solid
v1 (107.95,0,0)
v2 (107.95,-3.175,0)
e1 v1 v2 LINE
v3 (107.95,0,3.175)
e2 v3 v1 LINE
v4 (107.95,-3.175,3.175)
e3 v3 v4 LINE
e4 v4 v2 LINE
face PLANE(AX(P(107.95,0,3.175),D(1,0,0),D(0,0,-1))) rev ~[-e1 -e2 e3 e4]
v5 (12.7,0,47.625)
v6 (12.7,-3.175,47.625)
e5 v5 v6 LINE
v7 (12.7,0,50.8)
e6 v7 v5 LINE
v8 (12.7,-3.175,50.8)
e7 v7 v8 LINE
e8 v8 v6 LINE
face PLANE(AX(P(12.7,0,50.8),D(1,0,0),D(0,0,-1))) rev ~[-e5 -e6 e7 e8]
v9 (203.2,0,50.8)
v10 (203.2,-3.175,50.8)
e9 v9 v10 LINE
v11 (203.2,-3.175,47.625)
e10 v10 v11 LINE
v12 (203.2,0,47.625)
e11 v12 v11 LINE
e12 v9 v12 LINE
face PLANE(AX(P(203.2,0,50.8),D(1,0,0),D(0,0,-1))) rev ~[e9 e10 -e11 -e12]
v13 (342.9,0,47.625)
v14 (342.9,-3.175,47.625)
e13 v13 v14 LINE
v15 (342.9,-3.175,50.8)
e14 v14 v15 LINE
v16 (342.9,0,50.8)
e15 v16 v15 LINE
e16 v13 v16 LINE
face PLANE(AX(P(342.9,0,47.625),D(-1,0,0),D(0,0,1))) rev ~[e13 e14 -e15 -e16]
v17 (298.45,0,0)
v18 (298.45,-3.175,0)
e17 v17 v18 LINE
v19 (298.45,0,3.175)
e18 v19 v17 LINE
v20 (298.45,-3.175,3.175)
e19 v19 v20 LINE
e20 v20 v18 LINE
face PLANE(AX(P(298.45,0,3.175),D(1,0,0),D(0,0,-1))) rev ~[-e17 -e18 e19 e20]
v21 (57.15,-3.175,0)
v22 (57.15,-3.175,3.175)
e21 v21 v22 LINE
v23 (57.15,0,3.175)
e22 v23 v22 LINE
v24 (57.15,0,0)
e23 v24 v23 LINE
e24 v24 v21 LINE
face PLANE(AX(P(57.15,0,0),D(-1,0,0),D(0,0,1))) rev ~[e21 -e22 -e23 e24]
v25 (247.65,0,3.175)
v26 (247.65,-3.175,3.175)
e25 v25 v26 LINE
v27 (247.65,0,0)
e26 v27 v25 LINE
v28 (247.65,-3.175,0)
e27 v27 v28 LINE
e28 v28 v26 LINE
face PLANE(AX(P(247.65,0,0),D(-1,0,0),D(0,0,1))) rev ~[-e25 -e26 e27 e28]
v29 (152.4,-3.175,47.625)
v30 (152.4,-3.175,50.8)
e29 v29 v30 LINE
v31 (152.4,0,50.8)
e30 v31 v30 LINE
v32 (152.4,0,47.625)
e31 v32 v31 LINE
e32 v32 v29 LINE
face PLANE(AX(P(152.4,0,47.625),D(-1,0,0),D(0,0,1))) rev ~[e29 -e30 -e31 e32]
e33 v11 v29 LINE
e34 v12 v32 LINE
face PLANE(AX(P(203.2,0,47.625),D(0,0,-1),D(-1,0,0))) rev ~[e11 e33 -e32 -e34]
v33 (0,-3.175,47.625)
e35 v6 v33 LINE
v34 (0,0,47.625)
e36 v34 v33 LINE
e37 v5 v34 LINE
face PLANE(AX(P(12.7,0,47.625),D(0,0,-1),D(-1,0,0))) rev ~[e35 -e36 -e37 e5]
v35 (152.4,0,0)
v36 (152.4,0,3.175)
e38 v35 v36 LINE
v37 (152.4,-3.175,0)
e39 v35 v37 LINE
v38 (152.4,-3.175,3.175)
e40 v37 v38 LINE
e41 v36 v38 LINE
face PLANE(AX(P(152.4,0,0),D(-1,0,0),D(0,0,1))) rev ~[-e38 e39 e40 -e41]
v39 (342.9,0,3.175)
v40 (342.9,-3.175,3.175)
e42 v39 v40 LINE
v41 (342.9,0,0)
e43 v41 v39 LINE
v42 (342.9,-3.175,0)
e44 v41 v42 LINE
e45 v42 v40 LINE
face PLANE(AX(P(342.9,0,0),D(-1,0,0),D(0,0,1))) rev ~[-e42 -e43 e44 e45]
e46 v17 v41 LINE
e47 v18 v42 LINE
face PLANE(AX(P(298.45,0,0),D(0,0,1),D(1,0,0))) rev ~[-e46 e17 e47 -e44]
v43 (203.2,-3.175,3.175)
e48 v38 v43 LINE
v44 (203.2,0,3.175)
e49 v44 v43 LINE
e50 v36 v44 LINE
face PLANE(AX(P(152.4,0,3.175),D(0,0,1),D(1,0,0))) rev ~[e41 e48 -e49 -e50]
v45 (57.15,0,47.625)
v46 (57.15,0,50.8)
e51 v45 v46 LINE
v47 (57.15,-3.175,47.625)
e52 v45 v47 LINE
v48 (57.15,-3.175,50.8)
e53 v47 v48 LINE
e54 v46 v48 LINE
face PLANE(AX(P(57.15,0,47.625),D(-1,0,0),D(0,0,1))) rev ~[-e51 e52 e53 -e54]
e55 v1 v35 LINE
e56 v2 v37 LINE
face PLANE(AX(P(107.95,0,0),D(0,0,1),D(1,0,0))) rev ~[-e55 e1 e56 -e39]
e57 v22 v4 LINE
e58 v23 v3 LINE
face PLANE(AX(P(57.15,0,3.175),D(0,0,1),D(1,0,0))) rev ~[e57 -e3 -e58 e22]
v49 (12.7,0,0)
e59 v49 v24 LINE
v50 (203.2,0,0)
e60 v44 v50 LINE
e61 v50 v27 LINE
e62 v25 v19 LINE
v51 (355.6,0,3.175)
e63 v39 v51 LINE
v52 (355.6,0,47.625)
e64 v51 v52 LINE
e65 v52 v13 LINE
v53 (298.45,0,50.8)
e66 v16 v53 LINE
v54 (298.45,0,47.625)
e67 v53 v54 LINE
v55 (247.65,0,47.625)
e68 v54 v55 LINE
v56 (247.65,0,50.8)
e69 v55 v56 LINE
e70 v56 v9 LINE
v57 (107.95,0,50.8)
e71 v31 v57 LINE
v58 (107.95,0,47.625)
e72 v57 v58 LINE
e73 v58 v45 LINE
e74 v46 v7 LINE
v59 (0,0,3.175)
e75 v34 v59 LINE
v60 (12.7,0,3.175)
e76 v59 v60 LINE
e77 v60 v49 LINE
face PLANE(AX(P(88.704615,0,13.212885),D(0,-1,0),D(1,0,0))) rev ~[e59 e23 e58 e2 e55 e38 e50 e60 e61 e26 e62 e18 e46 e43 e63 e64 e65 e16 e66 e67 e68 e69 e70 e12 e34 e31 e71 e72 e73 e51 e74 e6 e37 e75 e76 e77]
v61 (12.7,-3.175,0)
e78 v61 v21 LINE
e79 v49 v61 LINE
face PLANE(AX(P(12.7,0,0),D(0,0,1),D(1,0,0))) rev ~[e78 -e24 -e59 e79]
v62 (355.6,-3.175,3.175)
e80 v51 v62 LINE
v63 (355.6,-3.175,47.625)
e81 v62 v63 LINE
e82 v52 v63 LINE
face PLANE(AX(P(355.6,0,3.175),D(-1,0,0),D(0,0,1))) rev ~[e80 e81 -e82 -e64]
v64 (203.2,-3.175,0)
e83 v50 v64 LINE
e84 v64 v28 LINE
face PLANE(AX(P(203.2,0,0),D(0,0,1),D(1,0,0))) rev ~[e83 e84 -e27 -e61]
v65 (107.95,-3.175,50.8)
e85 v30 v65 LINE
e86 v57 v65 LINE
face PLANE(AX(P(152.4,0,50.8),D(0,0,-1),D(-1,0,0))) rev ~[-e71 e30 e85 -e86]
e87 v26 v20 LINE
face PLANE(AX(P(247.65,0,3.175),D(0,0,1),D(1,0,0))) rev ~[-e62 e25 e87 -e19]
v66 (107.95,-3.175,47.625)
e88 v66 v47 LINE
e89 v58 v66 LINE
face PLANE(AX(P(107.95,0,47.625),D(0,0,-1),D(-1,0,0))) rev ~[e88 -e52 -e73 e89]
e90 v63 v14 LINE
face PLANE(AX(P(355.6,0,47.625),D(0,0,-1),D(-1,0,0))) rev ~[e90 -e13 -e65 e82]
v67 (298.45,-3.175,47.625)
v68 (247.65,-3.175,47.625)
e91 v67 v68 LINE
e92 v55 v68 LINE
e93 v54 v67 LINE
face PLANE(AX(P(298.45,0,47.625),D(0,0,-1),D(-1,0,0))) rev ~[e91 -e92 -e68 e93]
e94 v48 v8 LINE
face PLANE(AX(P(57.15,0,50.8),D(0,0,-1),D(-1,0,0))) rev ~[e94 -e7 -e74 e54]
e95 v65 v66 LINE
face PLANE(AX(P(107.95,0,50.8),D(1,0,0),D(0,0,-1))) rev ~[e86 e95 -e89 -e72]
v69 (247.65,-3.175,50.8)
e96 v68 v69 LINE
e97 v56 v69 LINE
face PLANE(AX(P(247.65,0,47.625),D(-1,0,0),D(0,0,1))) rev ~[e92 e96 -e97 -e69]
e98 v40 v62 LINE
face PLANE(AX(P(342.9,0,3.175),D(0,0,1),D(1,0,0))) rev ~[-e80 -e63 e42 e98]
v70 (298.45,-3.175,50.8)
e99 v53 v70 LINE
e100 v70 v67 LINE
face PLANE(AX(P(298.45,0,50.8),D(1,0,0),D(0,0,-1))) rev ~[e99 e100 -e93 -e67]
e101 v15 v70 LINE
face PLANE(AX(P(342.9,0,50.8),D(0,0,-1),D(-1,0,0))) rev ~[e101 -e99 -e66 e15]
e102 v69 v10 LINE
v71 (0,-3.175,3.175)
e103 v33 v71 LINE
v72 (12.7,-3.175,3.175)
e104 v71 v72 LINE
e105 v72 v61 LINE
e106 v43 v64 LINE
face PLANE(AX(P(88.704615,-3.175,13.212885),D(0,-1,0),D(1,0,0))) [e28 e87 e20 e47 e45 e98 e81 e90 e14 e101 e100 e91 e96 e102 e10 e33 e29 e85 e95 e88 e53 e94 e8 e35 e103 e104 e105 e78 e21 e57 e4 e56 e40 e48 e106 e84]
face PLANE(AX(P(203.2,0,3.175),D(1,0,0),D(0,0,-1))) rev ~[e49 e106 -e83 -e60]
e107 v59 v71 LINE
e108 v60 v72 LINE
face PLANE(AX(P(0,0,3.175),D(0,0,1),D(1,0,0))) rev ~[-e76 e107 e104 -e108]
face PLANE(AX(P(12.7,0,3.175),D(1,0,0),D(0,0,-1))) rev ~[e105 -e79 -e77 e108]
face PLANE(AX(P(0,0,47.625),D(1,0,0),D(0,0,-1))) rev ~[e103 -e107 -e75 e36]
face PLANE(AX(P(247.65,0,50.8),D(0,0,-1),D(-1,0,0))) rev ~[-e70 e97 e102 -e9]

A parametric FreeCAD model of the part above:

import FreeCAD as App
import Part
import Sketcher
from FreeCAD import Vector
Q = App.Units.Quantity

doc = App.newDocument("Part")
body = doc.addObject("PartDesign::Body", "Body")

# Sketch on XZ plane
sketch1 = doc.addObject("Sketcher::SketchObject", "Sketch")
body.addObject(sketch1)
sketch1.AttachmentSupport = (doc.XZ_Plane, [""])
sketch1.MapMode = "FlatFace"
sketch1.addGeometry([
    Part.LineSegment(Vector(12.7, 3.2, 0), Vector(12.7, 0, 0)),  # 0
    Part.LineSegment(Vector(12.7, 0, 0), Vector(57.1, 0, 0)),  # 1
    Part.LineSegment(Vector(57.1, 0, 0), Vector(57.1, 3.2, 0)),  # 2
    Part.LineSegment(Vector(57.1, 3.2, 0), Vector(108, 3.2, 0)),  # 3
    Part.LineSegment(Vector(108, 3.2, 0), Vector(108, 0, 0)),  # 4
    Part.LineSegment(Vector(108, 0, 0), Vector(152.4, 0, 0)),  # 5
    Part.LineSegment(Vector(152.4, 0, 0), Vector(152.4, 3.2, 0)),  # 6
    Part.LineSegment(Vector(152.4, 3.2, 0), Vector(203.2, 3.2, 0)),  # 7
    Part.LineSegment(Vector(203.2, 3.2, 0), Vector(203.2, 0, 0)),  # 8
    Part.LineSegment(Vector(203.2, 0, 0), Vector(247.7, 0, 0)),  # 9
    Part.LineSegment(Vector(247.7, 0, 0), Vector(247.7, 3.2, 0)),  # 10
    Part.LineSegment(Vector(247.7, 3.2, 0), Vector(298.4, 3.2, 0)),  # 11
    Part.LineSegment(Vector(298.4, 3.2, 0), Vector(298.4, 0, 0)),  # 12
    Part.LineSegment(Vector(298.4, 0, 0), Vector(342.9, 0, 0)),  # 13
    Part.LineSegment(Vector(342.9, 0, 0), Vector(342.9, 3.2, 0)),  # 14
    Part.LineSegment(Vector(342.9, 3.2, 0), Vector(355.6, 3.2, 0)),  # 15
    Part.LineSegment(Vector(355.6, 3.2, 0), Vector(355.6, 47.6, 0)),  # 16
    Part.LineSegment(Vector(355.6, 47.6, 0), Vector(342.9, 47.6, 0)),  # 17
    Part.LineSegment(Vector(342.9, 47.6, 0), Vector(342.9, 50.8, 0)),  # 18
    Part.LineSegment(Vector(342.9, 50.8, 0), Vector(298.4, 50.8, 0)),  # 19
    Part.LineSegment(Vector(298.4, 50.8, 0), Vector(298.4, 47.6, 0)),  # 20
    Part.LineSegment(Vector(298.4, 47.6, 0), Vector(247.7, 47.6, 0)),  # 21
    Part.LineSegment(Vector(247.7, 47.6, 0), Vector(247.7, 50.8, 0)),  # 22
    Part.LineSegment(Vector(247.7, 50.8, 0), Vector(203.2, 50.8, 0)),  # 23
    Part.LineSegment(Vector(203.2, 50.8, 0), Vector(203.2, 47.6, 0)),  # 24
    Part.LineSegment(Vector(203.2, 47.6, 0), Vector(152.4, 47.6, 0)),  # 25
    Part.LineSegment(Vector(152.4, 47.6, 0), Vector(152.4, 50.8, 0)),  # 26
    Part.LineSegment(Vector(152.4, 50.8, 0), Vector(108, 50.8, 0)),  # 27
    Part.LineSegment(Vector(108, 50.8, 0), Vector(108, 47.6, 0)),  # 28
    Part.LineSegment(Vector(108, 47.6, 0), Vector(57.1, 47.6, 0)),  # 29
    Part.LineSegment(Vector(57.1, 47.6, 0), Vector(57.1, 50.8, 0)),  # 30
    Part.LineSegment(Vector(57.1, 50.8, 0), Vector(12.7, 50.8, 0)),  # 31
    Part.LineSegment(Vector(12.7, 50.8, 0), Vector(12.7, 47.6, 0)),  # 32
    Part.LineSegment(Vector(12.7, 47.6, 0), Vector(0, 47.6, 0)),  # 33
    Part.LineSegment(Vector(0, 47.6, 0), Vector(0, 3.2, 0)),  # 34
    Part.LineSegment(Vector(0, 3.2, 0), Vector(12.7, 3.2, 0)),  # 35
], False)
sketch1.addConstraint([
    Sketcher.Constraint("Coincident", 0, 2, 1, 1),
    Sketcher.Constraint("Coincident", 1, 2, 2, 1),
    Sketcher.Constraint("Coincident", 2, 2, 3, 1),
    Sketcher.Constraint("Coincident", 3, 2, 4, 1),
    Sketcher.Constraint("Coincident", 4, 2, 5, 1),
    Sketcher.Constraint("Coincident", 5, 2, 6, 1),
    Sketcher.Constraint("Coincident", 6, 2, 7, 1),
    Sketcher.Constraint("Coincident", 7, 2, 8, 1),
    Sketcher.Constraint("Coincident", 8, 2, 9, 1),
    Sketcher.Constraint("Coincident", 9, 2, 10, 1),
    Sketcher.Constraint("Coincident", 10, 2, 11, 1),
    Sketcher.Constraint("Coincident", 11, 2, 12, 1),
    Sketcher.Constraint("Coincident", 12, 2, 13, 1),
    Sketcher.Constraint("Coincident", 13, 2, 14, 1),
    Sketcher.Constraint("Coincident", 14, 2, 15, 1),
    Sketcher.Constraint("Coincident", 15, 2, 16, 1),
    Sketcher.Constraint("Coincident", 16, 2, 17, 1),
    Sketcher.Constraint("Coincident", 17, 2, 18, 1),
    Sketcher.Constraint("Coincident", 18, 2, 19, 1),
    Sketcher.Constraint("Coincident", 19, 2, 20, 1),
    Sketcher.Constraint("Coincident", 20, 2, 21, 1),
    Sketcher.Constraint("Coincident", 21, 2, 22, 1),
    Sketcher.Constraint("Coincident", 22, 2, 23, 1),
    Sketcher.Constraint("Coincident", 23, 2, 24, 1),
    Sketcher.Constraint("Coincident", 24, 2, 25, 1),
    Sketcher.Constraint("Coincident", 25, 2, 26, 1),
    Sketcher.Constraint("Coincident", 26, 2, 27, 1),
    Sketcher.Constraint("Coincident", 27, 2, 28, 1),
    Sketcher.Constraint("Coincident", 28, 2, 29, 1),
    Sketcher.Constraint("Coincident", 29, 2, 30, 1),
    Sketcher.Constraint("Coincident", 30, 2, 31, 1),
    Sketcher.Constraint("Coincident", 31, 2, 32, 1),
    Sketcher.Constraint("Coincident", 32, 2, 33, 1),
    Sketcher.Constraint("Coincident", 33, 2, 34, 1),
    Sketcher.Constraint("Coincident", 34, 2, 35, 1),
    Sketcher.Constraint("Coincident", 35, 2, 0, 1),
    Sketcher.Constraint("Vertical", 0),
    Sketcher.Constraint("Horizontal", 1),
    Sketcher.Constraint("Vertical", 2),
    Sketcher.Constraint("Horizontal", 3),
    Sketcher.Constraint("Vertical", 4),
    Sketcher.Constraint("Horizontal", 5),
    Sketcher.Constraint("Vertical", 6),
    Sketcher.Constraint("Horizontal", 7),
    Sketcher.Constraint("Vertical", 8),
    Sketcher.Constraint("Horizontal", 9),
    Sketcher.Constraint("Vertical", 10),
    Sketcher.Constraint("Horizontal", 11),
    Sketcher.Constraint("Vertical", 12),
    Sketcher.Constraint("Horizontal", 13),
    Sketcher.Constraint("Vertical", 14),
    Sketcher.Constraint("Horizontal", 15),
    Sketcher.Constraint("Vertical", 16),
    Sketcher.Constraint("Horizontal", 17),
    Sketcher.Constraint("Vertical", 18),
    Sketcher.Constraint("Horizontal", 19),
    Sketcher.Constraint("Vertical", 20),
    Sketcher.Constraint("Horizontal", 21),
    Sketcher.Constraint("Vertical", 22),
    Sketcher.Constraint("Horizontal", 23),
    Sketcher.Constraint("Vertical", 24),
    Sketcher.Constraint("Horizontal", 25),
    Sketcher.Constraint("Vertical", 26),
    Sketcher.Constraint("Horizontal", 27),
    Sketcher.Constraint("Vertical", 28),
    Sketcher.Constraint("Horizontal", 29),
    Sketcher.Constraint("Vertical", 30),
    Sketcher.Constraint("Horizontal", 31),
    Sketcher.Constraint("Vertical", 32),
    Sketcher.Constraint("Horizontal", 33),
    Sketcher.Constraint("Vertical", 34),
    Sketcher.Constraint("Horizontal", 35),
    Sketcher.Constraint("PointOnObject", 0, 2, -1),
    Sketcher.Constraint("PointOnObject", 4, 2, -1),
    Sketcher.Constraint("PointOnObject", 8, 2, -1),
    Sketcher.Constraint("PointOnObject", 12, 2, -1),
    Sketcher.Constraint("PointOnObject", 33, 2, -2),
    Sketcher.Constraint("Horizontal", 3, 2, 6, 2),
    Sketcher.Constraint("Horizontal", 7, 2, 10, 2),
    Sketcher.Constraint("Horizontal", 11, 2, 14, 2),
    Sketcher.Constraint("Horizontal", 17, 2, 20, 2),
    Sketcher.Constraint("Horizontal", 19, 2, 22, 2),
    Sketcher.Constraint("Horizontal", 21, 2, 24, 2),
    Sketcher.Constraint("Horizontal", 23, 2, 26, 2),
    Sketcher.Constraint("Horizontal", 25, 2, 28, 2),
    Sketcher.Constraint("Horizontal", 27, 2, 30, 2),
    Sketcher.Constraint("Horizontal", 29, 2, 32, 2),
    Sketcher.Constraint("Horizontal", 15, 2, 34, 2),
    Sketcher.Constraint("Vertical", 14, 2, 17, 2),
    Sketcher.Constraint("Vertical", 12, 2, 19, 2),
    Sketcher.Constraint("Vertical", 10, 2, 21, 2),
    Sketcher.Constraint("Vertical", 8, 2, 23, 2),
    Sketcher.Constraint("Vertical", 6, 2, 25, 2),
    Sketcher.Constraint("Vertical", 4, 2, 27, 2),
    Sketcher.Constraint("Vertical", 2, 2, 29, 2),
    Sketcher.Constraint("Vertical", 0, 2, 31, 2),
    Sketcher.Constraint("Equal", 1, 5),
    Sketcher.Constraint("Equal", 3, 7),
    Sketcher.Constraint("Equal", 5, 9),
    Sketcher.Constraint("Equal", 7, 11),
    Sketcher.Constraint("Equal", 9, 13),
    Sketcher.Constraint("Equal", 17, 33),
    Sketcher.Constraint("Equal", 31, 16),
    Sketcher.Constraint("Equal", 14, 18),
    Sketcher.Constraint("DistanceX", 3, 1, 3, 2, Q("2 in")),
    Sketcher.Constraint("DistanceX", 15, 1, 15, 2, Q("0.5 in")),
    Sketcher.Constraint("DistanceX", -1, 1, 5, 2, Q("6 in")),
    Sketcher.Constraint("DistanceY", -1, 1, 18, 2, Q("2 in")),
])
pad1 = doc.addObject("PartDesign::Pad", "Pad")
body.addObject(pad1)
pad1.Profile = sketch1
pad1.Length = Q("0.125 in")

doc.recompute()
